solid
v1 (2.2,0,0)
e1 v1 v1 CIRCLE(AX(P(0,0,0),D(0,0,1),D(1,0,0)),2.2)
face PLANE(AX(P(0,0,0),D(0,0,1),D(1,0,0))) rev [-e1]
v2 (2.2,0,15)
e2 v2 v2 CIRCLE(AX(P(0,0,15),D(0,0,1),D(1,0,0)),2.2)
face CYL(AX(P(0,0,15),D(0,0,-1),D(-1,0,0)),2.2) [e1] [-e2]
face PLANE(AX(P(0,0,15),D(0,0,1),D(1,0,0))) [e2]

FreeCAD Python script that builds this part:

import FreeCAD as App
import Part
import Sketcher

V = App.Vector
Q = App.Units.Quantity

doc = App.newDocument("Part")
body = doc.addObject("PartDesign::Body", "Body")

# Sketch on XY plane
sketch1 = body.newObject("Sketcher::SketchObject", "Sketch")
sketch1.AttachmentSupport = (doc.getObject("XY_Plane"), [""])
sketch1.MapMode = "FlatFace"
sketch1.addGeometry(Part.Circle(V(0, 0, 0), V(0, 0, 1), 2.2), False)
sketch1.addConstraint([
    Sketcher.Constraint("Coincident", 0, 3, -1, 1),
    Sketcher.Constraint("Diameter", 0, Q("4.4 mm")),
])
pad1 = body.newObject("PartDesign::Pad", "Pad")
pad1.Profile = sketch1
pad1.Length = 15

doc.recompute()
